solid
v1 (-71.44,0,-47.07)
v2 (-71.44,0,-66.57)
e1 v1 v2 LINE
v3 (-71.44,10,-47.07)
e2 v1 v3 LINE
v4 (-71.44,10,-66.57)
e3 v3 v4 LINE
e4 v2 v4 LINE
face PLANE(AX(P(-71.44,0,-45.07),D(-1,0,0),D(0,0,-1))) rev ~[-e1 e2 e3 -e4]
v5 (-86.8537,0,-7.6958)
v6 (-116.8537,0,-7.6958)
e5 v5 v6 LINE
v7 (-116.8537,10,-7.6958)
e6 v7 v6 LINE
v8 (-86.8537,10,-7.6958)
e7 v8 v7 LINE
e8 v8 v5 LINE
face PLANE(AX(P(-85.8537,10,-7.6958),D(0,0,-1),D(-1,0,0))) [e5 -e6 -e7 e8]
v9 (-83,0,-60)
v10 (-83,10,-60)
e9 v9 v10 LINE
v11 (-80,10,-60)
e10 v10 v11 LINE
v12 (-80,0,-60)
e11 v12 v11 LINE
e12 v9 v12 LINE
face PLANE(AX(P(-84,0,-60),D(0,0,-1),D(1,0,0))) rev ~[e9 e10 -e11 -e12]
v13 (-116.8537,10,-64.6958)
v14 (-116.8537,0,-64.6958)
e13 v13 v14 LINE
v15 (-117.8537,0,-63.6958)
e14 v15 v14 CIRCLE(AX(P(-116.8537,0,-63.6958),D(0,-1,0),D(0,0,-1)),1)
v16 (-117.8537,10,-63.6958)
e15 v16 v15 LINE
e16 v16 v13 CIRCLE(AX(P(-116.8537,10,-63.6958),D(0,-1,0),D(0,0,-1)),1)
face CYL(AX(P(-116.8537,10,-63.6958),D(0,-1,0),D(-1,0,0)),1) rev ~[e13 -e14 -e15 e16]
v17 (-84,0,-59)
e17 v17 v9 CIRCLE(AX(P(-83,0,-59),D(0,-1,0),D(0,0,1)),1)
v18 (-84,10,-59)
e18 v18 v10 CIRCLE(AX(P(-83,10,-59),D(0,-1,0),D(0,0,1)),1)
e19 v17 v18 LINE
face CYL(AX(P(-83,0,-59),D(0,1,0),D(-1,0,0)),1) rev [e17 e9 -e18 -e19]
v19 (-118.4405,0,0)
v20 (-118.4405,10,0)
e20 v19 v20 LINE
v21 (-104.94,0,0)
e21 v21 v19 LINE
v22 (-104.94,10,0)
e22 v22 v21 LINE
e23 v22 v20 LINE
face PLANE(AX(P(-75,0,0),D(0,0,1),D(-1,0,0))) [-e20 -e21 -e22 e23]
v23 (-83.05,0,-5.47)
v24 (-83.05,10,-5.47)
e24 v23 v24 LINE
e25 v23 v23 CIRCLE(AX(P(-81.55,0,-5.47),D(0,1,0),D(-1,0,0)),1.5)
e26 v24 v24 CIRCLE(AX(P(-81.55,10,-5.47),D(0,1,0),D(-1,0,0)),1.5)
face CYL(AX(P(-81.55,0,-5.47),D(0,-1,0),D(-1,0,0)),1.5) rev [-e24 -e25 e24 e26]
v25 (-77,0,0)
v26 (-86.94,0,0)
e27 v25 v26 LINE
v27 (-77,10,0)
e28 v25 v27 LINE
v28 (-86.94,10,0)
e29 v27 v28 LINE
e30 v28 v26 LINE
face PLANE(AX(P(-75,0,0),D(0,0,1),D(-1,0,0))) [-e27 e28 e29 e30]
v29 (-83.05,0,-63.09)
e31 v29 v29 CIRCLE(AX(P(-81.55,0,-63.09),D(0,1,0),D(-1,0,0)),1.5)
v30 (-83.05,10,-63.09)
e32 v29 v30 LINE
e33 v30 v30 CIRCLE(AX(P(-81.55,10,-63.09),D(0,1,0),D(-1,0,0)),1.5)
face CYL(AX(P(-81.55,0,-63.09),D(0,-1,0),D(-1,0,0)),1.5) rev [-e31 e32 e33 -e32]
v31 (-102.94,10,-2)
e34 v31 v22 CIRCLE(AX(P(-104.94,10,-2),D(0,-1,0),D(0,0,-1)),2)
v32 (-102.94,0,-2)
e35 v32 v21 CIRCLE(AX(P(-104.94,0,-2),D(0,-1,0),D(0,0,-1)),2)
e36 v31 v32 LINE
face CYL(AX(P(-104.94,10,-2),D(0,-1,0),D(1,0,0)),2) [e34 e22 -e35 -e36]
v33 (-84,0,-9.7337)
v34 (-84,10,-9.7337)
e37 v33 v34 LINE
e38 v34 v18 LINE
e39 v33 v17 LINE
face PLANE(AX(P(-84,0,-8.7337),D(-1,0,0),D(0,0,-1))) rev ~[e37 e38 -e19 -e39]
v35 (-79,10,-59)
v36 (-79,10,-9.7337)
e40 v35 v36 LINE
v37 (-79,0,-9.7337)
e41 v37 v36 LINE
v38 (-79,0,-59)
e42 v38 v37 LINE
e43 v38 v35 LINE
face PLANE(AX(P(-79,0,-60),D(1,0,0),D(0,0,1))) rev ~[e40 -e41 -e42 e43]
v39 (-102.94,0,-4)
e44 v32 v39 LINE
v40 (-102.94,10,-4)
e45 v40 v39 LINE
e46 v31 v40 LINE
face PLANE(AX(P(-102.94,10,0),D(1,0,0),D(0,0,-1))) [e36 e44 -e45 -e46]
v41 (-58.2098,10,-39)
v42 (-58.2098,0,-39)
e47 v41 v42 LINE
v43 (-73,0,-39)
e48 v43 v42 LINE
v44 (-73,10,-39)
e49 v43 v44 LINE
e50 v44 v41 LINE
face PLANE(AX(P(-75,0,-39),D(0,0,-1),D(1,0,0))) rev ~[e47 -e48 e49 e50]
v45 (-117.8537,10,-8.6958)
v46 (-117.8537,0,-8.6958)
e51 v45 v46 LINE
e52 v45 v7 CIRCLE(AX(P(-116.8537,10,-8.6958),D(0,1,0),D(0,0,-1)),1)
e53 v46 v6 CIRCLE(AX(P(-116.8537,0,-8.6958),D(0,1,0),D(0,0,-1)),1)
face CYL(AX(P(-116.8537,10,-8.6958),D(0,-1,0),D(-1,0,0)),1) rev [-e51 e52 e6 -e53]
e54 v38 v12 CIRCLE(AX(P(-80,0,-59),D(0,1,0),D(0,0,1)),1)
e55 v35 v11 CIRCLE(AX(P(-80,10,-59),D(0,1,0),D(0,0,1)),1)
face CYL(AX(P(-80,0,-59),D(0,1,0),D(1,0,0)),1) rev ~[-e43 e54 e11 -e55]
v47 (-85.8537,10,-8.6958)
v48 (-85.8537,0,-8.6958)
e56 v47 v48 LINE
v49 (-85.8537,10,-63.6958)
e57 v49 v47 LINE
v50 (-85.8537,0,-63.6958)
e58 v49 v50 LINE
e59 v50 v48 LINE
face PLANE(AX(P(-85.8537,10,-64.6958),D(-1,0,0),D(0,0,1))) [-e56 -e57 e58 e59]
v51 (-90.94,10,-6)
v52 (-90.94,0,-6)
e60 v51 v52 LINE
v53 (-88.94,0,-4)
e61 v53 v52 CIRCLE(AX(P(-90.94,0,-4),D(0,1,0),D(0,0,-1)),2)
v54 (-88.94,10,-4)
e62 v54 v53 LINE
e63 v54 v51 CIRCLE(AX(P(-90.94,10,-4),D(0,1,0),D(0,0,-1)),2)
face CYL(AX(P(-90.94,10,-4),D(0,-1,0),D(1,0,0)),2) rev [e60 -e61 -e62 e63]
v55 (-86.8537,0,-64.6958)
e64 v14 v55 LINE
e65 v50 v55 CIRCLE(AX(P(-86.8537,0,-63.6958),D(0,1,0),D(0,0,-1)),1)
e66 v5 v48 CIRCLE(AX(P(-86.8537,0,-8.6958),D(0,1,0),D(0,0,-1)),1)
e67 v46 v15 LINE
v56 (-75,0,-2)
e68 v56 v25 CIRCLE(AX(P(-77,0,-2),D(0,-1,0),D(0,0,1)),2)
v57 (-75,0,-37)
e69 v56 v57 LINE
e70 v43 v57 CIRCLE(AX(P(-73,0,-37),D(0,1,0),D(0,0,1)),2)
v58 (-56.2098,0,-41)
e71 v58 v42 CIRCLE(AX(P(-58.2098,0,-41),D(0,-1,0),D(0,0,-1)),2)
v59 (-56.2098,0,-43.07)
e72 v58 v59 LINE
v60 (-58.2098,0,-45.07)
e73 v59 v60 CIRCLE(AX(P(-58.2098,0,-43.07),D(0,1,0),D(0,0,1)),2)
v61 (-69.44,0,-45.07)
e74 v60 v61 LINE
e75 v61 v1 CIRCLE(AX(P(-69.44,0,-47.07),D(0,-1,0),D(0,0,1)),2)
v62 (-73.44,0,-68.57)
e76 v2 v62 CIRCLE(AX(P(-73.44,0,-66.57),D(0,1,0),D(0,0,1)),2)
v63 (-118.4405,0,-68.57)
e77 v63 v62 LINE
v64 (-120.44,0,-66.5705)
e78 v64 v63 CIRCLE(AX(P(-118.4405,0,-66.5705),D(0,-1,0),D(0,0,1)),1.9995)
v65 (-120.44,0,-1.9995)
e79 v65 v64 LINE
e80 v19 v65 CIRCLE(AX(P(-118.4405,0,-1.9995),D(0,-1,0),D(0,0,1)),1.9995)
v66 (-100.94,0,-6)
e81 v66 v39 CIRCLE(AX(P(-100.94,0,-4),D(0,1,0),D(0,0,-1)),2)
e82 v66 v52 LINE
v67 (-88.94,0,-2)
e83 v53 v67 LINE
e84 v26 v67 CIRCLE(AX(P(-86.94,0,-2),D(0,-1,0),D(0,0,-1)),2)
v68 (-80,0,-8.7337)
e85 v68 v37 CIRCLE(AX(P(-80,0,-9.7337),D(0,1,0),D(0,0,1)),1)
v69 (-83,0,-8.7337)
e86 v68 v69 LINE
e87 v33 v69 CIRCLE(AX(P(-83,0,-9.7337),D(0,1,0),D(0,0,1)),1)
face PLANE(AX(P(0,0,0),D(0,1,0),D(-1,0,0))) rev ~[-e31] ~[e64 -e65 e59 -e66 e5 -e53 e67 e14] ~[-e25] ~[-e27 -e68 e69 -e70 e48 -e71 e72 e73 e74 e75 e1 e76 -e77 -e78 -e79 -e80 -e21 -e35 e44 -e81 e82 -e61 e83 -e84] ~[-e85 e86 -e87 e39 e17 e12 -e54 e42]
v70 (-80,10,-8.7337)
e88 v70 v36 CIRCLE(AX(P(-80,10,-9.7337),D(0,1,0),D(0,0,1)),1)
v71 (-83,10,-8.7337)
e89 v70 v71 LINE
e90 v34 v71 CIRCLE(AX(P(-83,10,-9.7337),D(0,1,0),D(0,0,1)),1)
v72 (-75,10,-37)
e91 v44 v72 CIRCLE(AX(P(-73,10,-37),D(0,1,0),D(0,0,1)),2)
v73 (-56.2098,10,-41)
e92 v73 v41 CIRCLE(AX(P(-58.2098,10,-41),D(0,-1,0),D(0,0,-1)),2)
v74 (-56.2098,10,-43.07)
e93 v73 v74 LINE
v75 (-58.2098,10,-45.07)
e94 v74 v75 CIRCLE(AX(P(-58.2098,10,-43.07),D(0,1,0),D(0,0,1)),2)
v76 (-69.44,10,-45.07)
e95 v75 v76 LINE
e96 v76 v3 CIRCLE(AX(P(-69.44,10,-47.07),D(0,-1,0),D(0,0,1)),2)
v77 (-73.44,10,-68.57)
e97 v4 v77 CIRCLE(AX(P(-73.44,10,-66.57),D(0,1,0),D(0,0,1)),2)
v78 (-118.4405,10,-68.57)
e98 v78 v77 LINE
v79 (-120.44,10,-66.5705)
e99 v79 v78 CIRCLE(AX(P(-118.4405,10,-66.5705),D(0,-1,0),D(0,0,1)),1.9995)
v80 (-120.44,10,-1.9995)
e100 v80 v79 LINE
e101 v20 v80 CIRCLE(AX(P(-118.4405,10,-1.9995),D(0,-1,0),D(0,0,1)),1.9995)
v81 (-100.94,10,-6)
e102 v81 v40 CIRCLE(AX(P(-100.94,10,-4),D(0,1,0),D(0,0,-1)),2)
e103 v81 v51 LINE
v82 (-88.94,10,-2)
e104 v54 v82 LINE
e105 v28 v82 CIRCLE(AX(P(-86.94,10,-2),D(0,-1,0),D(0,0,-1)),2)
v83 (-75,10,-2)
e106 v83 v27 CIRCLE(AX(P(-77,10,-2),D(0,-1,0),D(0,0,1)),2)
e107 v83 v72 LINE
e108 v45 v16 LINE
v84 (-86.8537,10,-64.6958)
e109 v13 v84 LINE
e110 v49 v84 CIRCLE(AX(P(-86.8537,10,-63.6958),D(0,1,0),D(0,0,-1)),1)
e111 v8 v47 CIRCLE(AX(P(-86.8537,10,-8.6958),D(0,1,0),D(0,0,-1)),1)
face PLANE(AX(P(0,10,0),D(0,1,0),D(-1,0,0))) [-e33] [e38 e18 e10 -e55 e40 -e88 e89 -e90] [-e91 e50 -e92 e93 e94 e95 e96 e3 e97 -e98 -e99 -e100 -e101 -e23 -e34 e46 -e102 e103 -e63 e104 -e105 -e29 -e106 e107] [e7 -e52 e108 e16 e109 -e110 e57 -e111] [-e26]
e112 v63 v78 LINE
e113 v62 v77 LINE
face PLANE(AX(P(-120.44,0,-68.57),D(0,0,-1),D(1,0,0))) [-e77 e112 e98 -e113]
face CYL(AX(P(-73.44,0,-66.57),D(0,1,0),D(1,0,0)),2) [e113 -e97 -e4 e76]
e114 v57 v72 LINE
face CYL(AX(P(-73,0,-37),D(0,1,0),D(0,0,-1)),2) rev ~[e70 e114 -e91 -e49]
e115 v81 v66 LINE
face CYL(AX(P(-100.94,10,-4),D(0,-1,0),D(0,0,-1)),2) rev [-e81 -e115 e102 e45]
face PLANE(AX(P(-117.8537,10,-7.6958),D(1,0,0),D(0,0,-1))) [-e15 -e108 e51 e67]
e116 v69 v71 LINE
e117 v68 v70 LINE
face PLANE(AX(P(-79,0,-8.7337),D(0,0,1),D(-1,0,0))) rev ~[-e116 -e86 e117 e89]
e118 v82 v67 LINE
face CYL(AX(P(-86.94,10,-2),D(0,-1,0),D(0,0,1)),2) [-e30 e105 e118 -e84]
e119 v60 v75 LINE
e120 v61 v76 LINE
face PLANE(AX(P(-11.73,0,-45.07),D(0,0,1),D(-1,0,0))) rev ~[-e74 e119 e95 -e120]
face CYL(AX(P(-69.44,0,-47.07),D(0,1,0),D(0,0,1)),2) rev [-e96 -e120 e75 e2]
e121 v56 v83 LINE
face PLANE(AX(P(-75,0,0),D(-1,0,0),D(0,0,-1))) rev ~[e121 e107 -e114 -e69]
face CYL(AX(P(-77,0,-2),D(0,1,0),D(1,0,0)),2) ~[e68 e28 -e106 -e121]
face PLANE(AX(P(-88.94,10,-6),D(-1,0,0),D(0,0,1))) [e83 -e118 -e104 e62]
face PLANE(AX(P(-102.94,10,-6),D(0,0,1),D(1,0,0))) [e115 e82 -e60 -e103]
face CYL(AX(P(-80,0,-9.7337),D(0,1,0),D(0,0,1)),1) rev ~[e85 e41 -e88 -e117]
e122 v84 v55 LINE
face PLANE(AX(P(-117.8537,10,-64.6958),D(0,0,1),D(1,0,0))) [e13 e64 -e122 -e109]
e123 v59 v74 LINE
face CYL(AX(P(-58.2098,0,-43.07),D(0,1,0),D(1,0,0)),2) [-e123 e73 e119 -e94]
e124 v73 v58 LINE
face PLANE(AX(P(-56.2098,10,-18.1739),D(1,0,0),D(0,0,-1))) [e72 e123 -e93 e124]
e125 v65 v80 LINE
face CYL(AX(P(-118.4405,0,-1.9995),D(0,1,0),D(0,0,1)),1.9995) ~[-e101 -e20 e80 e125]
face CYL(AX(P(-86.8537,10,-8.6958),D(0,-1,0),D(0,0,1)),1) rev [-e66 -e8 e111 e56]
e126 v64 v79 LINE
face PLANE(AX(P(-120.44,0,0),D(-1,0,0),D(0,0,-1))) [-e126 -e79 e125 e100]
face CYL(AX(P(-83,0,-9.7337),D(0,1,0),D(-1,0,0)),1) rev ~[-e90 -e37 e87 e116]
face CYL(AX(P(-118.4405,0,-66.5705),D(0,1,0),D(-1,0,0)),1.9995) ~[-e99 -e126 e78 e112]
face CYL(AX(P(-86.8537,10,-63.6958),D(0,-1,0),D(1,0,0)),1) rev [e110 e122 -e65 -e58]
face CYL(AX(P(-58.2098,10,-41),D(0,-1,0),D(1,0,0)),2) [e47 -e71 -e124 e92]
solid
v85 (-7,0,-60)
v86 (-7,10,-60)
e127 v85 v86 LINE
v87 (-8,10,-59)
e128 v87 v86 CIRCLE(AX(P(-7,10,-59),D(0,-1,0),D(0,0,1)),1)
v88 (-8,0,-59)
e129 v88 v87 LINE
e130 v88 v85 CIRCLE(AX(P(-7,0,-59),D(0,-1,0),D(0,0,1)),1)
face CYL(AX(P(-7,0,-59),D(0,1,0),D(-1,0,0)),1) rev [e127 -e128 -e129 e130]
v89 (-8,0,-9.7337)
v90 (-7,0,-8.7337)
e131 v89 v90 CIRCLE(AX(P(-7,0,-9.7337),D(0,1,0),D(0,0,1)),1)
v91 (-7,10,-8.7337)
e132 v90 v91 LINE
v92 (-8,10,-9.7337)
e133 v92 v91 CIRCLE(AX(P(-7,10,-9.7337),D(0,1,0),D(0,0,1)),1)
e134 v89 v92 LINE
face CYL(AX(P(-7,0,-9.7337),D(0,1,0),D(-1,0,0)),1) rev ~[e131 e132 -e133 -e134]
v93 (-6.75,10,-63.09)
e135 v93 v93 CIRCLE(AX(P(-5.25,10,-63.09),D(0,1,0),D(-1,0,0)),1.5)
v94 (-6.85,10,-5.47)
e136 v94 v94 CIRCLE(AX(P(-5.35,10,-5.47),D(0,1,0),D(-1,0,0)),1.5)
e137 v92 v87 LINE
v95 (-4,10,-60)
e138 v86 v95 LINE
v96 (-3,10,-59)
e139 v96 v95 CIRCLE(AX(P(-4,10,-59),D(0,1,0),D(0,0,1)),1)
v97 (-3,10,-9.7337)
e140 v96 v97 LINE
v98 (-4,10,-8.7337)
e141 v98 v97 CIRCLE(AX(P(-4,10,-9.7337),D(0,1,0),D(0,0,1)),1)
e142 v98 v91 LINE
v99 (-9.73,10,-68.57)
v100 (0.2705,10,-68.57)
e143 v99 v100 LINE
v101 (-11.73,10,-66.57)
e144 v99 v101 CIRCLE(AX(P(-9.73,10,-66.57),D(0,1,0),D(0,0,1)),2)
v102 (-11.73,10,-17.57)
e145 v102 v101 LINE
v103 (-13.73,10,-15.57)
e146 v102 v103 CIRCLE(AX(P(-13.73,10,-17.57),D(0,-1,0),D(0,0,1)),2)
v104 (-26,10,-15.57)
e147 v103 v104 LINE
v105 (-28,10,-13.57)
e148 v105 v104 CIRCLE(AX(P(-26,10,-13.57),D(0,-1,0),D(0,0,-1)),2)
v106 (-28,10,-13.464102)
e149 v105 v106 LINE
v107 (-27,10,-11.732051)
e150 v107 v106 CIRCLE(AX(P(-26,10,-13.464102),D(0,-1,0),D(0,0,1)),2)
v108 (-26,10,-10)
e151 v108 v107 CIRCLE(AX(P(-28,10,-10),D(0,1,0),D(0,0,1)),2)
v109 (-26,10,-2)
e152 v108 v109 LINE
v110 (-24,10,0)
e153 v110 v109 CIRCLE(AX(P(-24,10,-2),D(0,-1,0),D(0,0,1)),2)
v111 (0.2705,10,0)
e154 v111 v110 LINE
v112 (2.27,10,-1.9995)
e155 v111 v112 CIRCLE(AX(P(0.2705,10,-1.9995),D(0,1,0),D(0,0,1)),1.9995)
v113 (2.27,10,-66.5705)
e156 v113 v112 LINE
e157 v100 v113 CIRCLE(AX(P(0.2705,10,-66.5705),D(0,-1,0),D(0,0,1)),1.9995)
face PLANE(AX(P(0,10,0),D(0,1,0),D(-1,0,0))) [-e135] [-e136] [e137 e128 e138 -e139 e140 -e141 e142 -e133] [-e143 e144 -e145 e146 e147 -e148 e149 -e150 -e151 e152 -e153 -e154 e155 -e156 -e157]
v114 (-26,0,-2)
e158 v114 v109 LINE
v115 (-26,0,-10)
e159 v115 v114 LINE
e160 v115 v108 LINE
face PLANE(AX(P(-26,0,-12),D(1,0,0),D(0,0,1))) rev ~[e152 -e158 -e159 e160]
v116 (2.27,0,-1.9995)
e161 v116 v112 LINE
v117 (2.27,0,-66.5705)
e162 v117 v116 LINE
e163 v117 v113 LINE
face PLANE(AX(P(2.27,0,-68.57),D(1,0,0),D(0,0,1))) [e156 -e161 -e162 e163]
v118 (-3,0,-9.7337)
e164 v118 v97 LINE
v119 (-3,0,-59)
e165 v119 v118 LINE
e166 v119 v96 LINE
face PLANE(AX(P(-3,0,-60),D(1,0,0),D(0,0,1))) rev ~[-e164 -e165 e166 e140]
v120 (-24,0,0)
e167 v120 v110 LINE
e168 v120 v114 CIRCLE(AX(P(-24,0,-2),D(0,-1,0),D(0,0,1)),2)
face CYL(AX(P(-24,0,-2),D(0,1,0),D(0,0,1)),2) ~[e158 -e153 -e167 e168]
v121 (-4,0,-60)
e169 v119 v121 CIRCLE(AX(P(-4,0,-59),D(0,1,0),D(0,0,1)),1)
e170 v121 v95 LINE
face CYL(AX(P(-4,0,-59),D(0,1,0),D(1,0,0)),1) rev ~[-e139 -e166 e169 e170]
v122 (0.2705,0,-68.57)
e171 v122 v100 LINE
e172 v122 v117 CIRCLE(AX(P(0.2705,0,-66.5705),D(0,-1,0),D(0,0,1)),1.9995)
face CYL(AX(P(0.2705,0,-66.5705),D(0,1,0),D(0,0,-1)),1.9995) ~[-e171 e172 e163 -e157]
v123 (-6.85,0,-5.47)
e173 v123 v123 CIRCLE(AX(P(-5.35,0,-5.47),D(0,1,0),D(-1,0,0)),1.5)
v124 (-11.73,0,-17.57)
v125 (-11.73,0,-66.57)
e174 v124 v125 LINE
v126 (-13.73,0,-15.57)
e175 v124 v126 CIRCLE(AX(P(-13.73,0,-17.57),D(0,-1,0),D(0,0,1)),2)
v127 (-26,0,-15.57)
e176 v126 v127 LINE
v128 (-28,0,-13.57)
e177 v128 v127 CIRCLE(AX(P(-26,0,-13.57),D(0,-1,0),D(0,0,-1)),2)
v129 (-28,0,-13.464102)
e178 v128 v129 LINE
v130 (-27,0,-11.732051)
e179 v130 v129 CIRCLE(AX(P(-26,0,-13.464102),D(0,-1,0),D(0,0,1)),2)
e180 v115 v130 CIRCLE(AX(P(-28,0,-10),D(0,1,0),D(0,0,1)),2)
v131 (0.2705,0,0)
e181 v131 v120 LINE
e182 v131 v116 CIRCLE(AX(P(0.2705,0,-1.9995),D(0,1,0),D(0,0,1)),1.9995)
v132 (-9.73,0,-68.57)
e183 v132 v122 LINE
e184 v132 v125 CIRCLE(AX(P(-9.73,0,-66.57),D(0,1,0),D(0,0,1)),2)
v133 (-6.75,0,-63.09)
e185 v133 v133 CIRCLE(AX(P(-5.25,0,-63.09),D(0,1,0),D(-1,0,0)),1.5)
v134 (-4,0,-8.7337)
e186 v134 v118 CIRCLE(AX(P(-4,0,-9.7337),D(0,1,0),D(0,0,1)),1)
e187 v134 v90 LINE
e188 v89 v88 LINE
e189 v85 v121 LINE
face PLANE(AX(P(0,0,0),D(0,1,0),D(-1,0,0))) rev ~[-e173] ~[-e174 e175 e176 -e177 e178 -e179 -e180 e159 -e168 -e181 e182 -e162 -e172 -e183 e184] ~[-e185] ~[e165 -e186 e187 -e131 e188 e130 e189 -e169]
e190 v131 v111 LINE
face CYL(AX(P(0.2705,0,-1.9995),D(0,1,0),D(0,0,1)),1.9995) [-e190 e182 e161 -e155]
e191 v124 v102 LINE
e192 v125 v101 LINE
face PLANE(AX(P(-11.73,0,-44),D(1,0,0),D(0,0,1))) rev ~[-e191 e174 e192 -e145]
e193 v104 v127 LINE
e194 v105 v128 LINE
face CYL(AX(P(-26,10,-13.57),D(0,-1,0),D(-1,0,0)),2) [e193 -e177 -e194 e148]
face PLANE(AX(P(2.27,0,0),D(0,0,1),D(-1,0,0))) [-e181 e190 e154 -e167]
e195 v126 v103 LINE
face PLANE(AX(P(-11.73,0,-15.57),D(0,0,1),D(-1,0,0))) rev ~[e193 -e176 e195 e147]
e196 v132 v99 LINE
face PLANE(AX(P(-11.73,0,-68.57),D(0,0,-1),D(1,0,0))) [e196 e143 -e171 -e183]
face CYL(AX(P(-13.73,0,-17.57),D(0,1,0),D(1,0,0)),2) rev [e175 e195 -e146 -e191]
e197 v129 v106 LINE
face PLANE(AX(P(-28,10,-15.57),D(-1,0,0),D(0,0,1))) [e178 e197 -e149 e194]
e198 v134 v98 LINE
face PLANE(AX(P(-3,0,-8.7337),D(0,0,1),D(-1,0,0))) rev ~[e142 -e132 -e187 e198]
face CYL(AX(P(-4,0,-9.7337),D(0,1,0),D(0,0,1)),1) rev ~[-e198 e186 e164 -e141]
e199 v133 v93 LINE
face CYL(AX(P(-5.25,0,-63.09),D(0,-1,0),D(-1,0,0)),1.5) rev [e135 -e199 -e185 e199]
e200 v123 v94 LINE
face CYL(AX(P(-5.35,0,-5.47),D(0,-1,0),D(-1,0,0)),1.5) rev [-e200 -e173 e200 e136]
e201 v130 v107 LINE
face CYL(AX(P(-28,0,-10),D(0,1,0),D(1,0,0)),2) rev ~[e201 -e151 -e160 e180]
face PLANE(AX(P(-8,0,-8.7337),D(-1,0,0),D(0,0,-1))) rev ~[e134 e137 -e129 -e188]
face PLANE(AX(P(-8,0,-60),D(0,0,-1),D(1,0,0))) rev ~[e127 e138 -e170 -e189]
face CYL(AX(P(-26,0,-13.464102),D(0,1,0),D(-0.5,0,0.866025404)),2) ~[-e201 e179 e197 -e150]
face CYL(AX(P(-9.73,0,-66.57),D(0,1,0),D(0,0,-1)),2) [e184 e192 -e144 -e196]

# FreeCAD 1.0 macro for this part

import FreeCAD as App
import Part
import Sketcher
Q = App.Units.Quantity


def edges_at(feature, points):
    """Names of the edges that pass closest to the given points."""
    edges = feature.Shape.Edges
    near = lambda p: min(range(len(edges)), key=lambda i: edges[i].distToShape(Part.Vertex(*p))[0])
    return sorted({f"Edge{near(p) + 1}" for p in points})

doc = App.newDocument("Part")
params = doc.addObject("Spreadsheet::Sheet", "Params")
for row, (alias, value) in enumerate([
    ("sketch1_diameter", "3 mm"),
    ("sketch1_width", "14 mm"),
    ("sketch1_width2", "49 mm"),
    ("sketch1_width3", "24 mm"),
    ("sketch1_height", "39 mm"),
    ("pad1_length", "10 mm"),
    ("fillet_radius", "2 mm"),
    ("fillet2_radius", "2 mm"),
    ("fillet3_radius", "1 mm"),
    ("sketch2_width", "14 mm"),
    ("sketch2_height", "6 mm"),
    ("pocket1_length", "10 mm"),
    ("fillet4_radius", "2 mm"),
    ("sketch3_diameter", "2.5 mm"),
    ("pocket2_length", "10 mm"),
    ("sketch4_diameter", "2.5 mm"),
    ("pocket3_length", "10 mm"),
    ("sketch5_width", "32 mm"),
    ("sketch5_height", "57 mm"),
    ("pocket4_length", "10 mm"),
    ("fillet5_radius", "1 mm"),
    ("sketch6_width", "12 mm"),
    ("sketch6_height", "3.57 mm"),
    ("pocket5_length", "10 mm"),
    ("fillet6_radius", "2 mm"),
    ("pocket6_length", "10 mm"),
    ("fillet7_radius", "2 mm"),
    ("sketch8_width", "33 mm"),
    ("sketch8_height", "18 mm"),
    ("pocket7_length", "10 mm"),
    ("fillet8_radius", "2 mm"),
], start=1):
    params.set(f"A{row}", alias)
    params.set(f"B{row}", "=" + value)
    params.setAlias(f"B{row}", alias)

body = doc.addObject("PartDesign::Body", "Body")
body.AllowCompound = True

sketch1 = doc.addObject("Sketcher::SketchObject", "Sketch")
body.addObject(sketch1)
sketch1.AttachmentSupport = (doc.XZ_Plane, [""])
sketch1.MapMode = "FlatFace"
sketch1.addGeometry([
    Part.LineSegment(App.Vector(-26, 0, 0), App.Vector(2.27, 0, 0)),
    Part.LineSegment(App.Vector(2.27, 0, 0), App.Vector(2.27, -68.57, 0)),
    Part.LineSegment(App.Vector(2.27, -68.57, 0), App.Vector(-11.73, -68.57, 0)),
    Part.LineSegment(App.Vector(-11.73, -68.57, 0), App.Vector(-11.73, -45.07, 0)),
    Part.LineSegment(App.Vector(-11.73, -45.07, 0), App.Vector(-71.44, -45.07, 0)),
    Part.LineSegment(App.Vector(-71.44, -45.07, 0), App.Vector(-71.44, -68.57, 0)),
    Part.LineSegment(App.Vector(-71.44, -68.57, 0), App.Vector(-120.44, -68.57, 0)),
    Part.LineSegment(App.Vector(-120.44, -68.57, 0), App.Vector(-120.44, 0, 0)),
    Part.LineSegment(App.Vector(-120.44, 0, 0), App.Vector(-75, 0, 0)),
    Part.LineSegment(App.Vector(-75, 0, 0), App.Vector(-75, -39, 0)),
    Part.LineSegment(App.Vector(-75, -39, 0), App.Vector(-51, -39, 0)),
    Part.LineSegment(App.Vector(-51, -39, 0), App.Vector(-51, -12, 0)),
    Part.LineSegment(App.Vector(-51, -12, 0), App.Vector(-26, -12, 0)),
    Part.LineSegment(App.Vector(-26, -12, 0), App.Vector(-26, 0, 0)),
    Part.Circle(App.Vector(-5.25, -63.09, 0), App.Vector(0, 0, 1), 1.5),
    Part.LineSegment(App.Vector(-8, -8.7337, 0), App.Vector(-8, -60, 0)),
    Part.LineSegment(App.Vector(-8, -60, 0), App.Vector(-3, -60, 0)),
    Part.LineSegment(App.Vector(-3, -60, 0), App.Vector(-3, -8.7337, 0)),
    Part.LineSegment(App.Vector(-3, -8.7337, 0), App.Vector(-8, -8.7337, 0)),
    Part.Circle(App.Vector(-81.55, -63.09, 0), App.Vector(0, 0, 1), 1.5),
    Part.LineSegment(App.Vector(-84, -8.7337, 0), App.Vector(-84, -60, 0)),
    Part.LineSegment(App.Vector(-84, -60, 0), App.Vector(-79, -60, 0)),
    Part.LineSegment(App.Vector(-79, -60, 0), App.Vector(-79, -8.7337, 0)),
    Part.LineSegment(App.Vector(-79, -8.7337, 0), App.Vector(-84, -8.7337, 0)),
    Part.LineSegment(App.Vector(-11.73, -44, 0), App.Vector(-11.73, -15.57, 0)),
    Part.LineSegment(App.Vector(-11.73, -15.57, 0), App.Vector(-42, -15.57, 0)),
    Part.LineSegment(App.Vector(-42, -15.57, 0), App.Vector(-42, -44, 0)),
    Part.LineSegment(App.Vector(-42, -44, 0), App.Vector(-11.73, -44, 0)),
    Part.Circle(App.Vector(-5.35, -5.47, 0), App.Vector(0, 0, 1), 1.5),
    Part.Circle(App.Vector(-81.55, -5.47, 0), App.Vector(0, 0, 1), 1.5),
], False)
sketch1.addConstraint([
    Sketcher.Constraint("Coincident", 0, 2, 1, 1),
    Sketcher.Constraint("Coincident", 1, 2, 2, 1),
    Sketcher.Constraint("Coincident", 2, 2, 3, 1),
    Sketcher.Constraint("Coincident", 3, 2, 4, 1),
    Sketcher.Constraint("Coincident", 4, 2, 5, 1),
    Sketcher.Constraint("Coincident", 5, 2, 6, 1),
    Sketcher.Constraint("Coincident", 6, 2, 7, 1),
    Sketcher.Constraint("Coincident", 7, 2, 8, 1),
    Sketcher.Constraint("Coincident", 8, 2, 9, 1),
    Sketcher.Constraint("Coincident", 9, 2, 10, 1),
    Sketcher.Constraint("Coincident", 10, 2, 11, 1),
    Sketcher.Constraint("Coincident", 11, 2, 12, 1),
    Sketcher.Constraint("Coincident", 12, 2, 13, 1),
    Sketcher.Constraint("Coincident", 13, 2, 0, 1),
    Sketcher.Constraint("Coincident", 15, 2, 16, 1),
    Sketcher.Constraint("Coincident", 16, 2, 17, 1),
    Sketcher.Constraint("Coincident", 17, 2, 18, 1),
    Sketcher.Constraint("Coincident", 18, 2, 15, 1),
    Sketcher.Constraint("Coincident", 20, 2, 21, 1),
    Sketcher.Constraint("Coincident", 21, 2, 22, 1),
    Sketcher.Constraint("Coincident", 22, 2, 23, 1),
    Sketcher.Constraint("Coincident", 23, 2, 20, 1),
    Sketcher.Constraint("Coincident", 24, 2, 25, 1),
    Sketcher.Constraint("Coincident", 25, 2, 26, 1),
    Sketcher.Constraint("Coincident", 26, 2, 27, 1),
    Sketcher.Constraint("Coincident", 27, 2, 24, 1),
    Sketcher.Constraint("Horizontal", 0),
    Sketcher.Constraint("Vertical", 1),
    Sketcher.Constraint("Horizontal", 2),
    Sketcher.Constraint("Vertical", 3),
    Sketcher.Constraint("Horizontal", 4),
    Sketcher.Constraint("Vertical", 5),
    Sketcher.Constraint("Horizontal", 6),
    Sketcher.Constraint("Vertical", 7),
    Sketcher.Constraint("Horizontal", 8),
    Sketcher.Constraint("Vertical", 9),
    Sketcher.Constraint("Horizontal", 10),
    Sketcher.Constraint("Vertical", 11),
    Sketcher.Constraint("Horizontal", 12),
    Sketcher.Constraint("Vertical", 13),
    Sketcher.Constraint("Vertical", 15),
    Sketcher.Constraint("Horizontal", 16),
    Sketcher.Constraint("Vertical", 17),
    Sketcher.Constraint("Horizontal", 18),
    Sketcher.Constraint("Vertical", 20),
    Sketcher.Constraint("Horizontal", 21),
    Sketcher.Constraint("Vertical", 22),
    Sketcher.Constraint("Horizontal", 23),
    Sketcher.Constraint("Vertical", 24),
    Sketcher.Constraint("Horizontal", 25),
    Sketcher.Constraint("Vertical", 26),
    Sketcher.Constraint("Horizontal", 27),
    Sketcher.Constraint("Equal", 14, 19),
    Sketcher.Constraint("Equal", 19, 28),
    Sketcher.Constraint("Equal", 28, 29),
    Sketcher.Constraint("PointOnObject", 0, 2, -1),
    Sketcher.Constraint("PointOnObject", 7, 2, -1),
    Sketcher.Constraint("Horizontal", 14, 3, 19, 3),
    Sketcher.Constraint("Horizontal", 28, 3, 29, 3),
    Sketcher.Constraint("Horizontal", 2, 2, 5, 2),
    Sketcher.Constraint("Horizontal", 16, 2, 20, 2),
    Sketcher.Constraint("Horizontal", 18, 2, 22, 2),
    Sketcher.Constraint("Vertical", 19, 3, 29, 3),
    Sketcher.Constraint("Vertical", 3, 2, 24, 2),
    Sketcher.Constraint("Equal", 18, 21),
    Sketcher.Constraint("Diameter", 14, 3.0),
    Sketcher.Constraint("DistanceX", 2, 2, 2, 1, 14.0),
    Sketcher.Constraint("DistanceX", 6, 2, 6, 1, 49.0),
    Sketcher.Constraint("DistanceX", 10, 1, 10, 2, 24.0),
    Sketcher.Constraint("DistanceY", 9, 2, 9, 1, 39.0),
    Sketcher.Constraint("DistanceY", 13, 1, 13, 2, 12.0),
    Sketcher.Constraint("DistanceY", 3, 1, 3, 2, 23.5),
    Sketcher.Constraint("DistanceX", 16, 2, -1, 1, 3.0),
    Sketcher.Constraint("DistanceX", 25, 2, 25, 1, 30.27),
    Sketcher.Constraint("DistanceY", 1, 2, 1, 1, 68.57),
    Sketcher.Constraint("DistanceY", 24, 1, 24, 2, 28.43),
    Sketcher.Constraint("DistanceX", 12, 1, 12, 2, 25.0),
    Sketcher.Constraint("DistanceX", 16, 1, 16, 2, 5.0),
    Sketcher.Constraint("DistanceX", 8, 2, -1, 1, 75.0),
    Sketcher.Constraint("DistanceY", 15, 2, -1, 1, 60.0),
    Sketcher.Constraint("DistanceX", 20, 2, -1, 1, 84.0),
    Sketcher.Constraint("DistanceX", 25, 2, -1, 1, 42.0),
    Sketcher.Constraint("DistanceY", 26, 2, -1, 1, 44.0),
    Sketcher.Constraint("DistanceX", 4, 2, 4, 1, 59.71),
    Sketcher.Constraint("DistanceX", 19, 3, 14, 3, 76.3),
    Sketcher.Constraint("DistanceX", 28, 3, 14, 3, 0.1),
    Sketcher.Constraint("DistanceY", 1, 2, 28, 3, 63.1),
    Sketcher.Constraint("DistanceX", 14, 3, -1, 1, 5.25),
    Sketcher.Constraint("DistanceY", 14, 3, -1, 1, 63.09),
    Sketcher.Constraint("DistanceY", 15, 2, 15, 1, 51.2663),
])
sketch1.setExpression("Constraints[65]", "Params.sketch1_diameter")
sketch1.setExpression("Constraints[66]", "Params.sketch1_width")
sketch1.setExpression("Constraints[67]", "Params.sketch1_width2")
sketch1.setExpression("Constraints[68]", "Params.sketch1_width3")
sketch1.setExpression("Constraints[69]", "Params.sketch1_height")
pad1 = doc.addObject("PartDesign::Pad", "Pad")
body.addObject(pad1)
pad1.Profile = sketch1
pad1.setExpression("Length", "Params.pad1_length")
pad1.Reversed = True
doc.recompute()

fillet = doc.addObject("PartDesign::Fillet", "Fillet")
body.addObject(fillet)
fillet.Base = (pad1, edges_at(pad1, [
    (-120.44, 5, -68.57),
    (-120.44, 5, 0),
    (2.27, 5, -68.57),
    (2.27, 5, 0),
]))
fillet.setExpression("Radius", "Params.fillet_radius")
doc.recompute()

fillet2 = doc.addObject("PartDesign::Fillet", "Fillet001")
body.addObject(fillet2)
fillet2.Base = (fillet, edges_at(fillet, [
    (-71.44, 5, -68.57),
    (-71.44, 5, -45.07),
    (-11.73, 5, -68.57),
    (-11.73, 5, -45.07),
    (-11.73, 5, -44),
    (-11.73, 5, -15.57),
    (-42, 5, -15.57),
    (-42, 5, -44),
    (-26, 5, -12),
    (-51, 5, -12),
    (-26, 5, 0),
    (-51, 5, -39),
    (-75, 5, -39),
    (-75, 5, 0),
]))
fillet2.setExpression("Radius", "Params.fillet2_radius")
doc.recompute()

fillet3 = doc.addObject("PartDesign::Fillet", "Fillet002")
body.addObject(fillet3)
fillet3.Base = (fillet2, edges_at(fillet2, [
    (-8, 5, -8.734),
    (-3, 5, -8.734),
    (-3, 5, -60),
    (-8, 5, -60),
    (-79, 5, -8.734),
    (-84, 5, -8.734),
    (-84, 5, -60),
    (-79, 5, -60),
]))
fillet3.setExpression("Radius", "Params.fillet3_radius")

sketch2 = doc.addObject("Sketcher::SketchObject", "Sketch001")
body.addObject(sketch2)
sketch2.AttachmentSupport = (doc.XZ_Plane, [""])
sketch2.MapMode = "FlatFace"
sketch2.AttachmentOffset = App.Placement(App.Vector(0, 0, -10), App.Rotation())
sketch2.addGeometry([
    Part.LineSegment(App.Vector(-102.94, -6, 0), App.Vector(-102.94, 0, 0)),
    Part.LineSegment(App.Vector(-102.94, 0, 0), App.Vector(-88.94, 0, 0)),
    Part.LineSegment(App.Vector(-88.94, 0, 0), App.Vector(-88.94, -6, 0)),
    Part.LineSegment(App.Vector(-88.94, -6, 0), App.Vector(-102.94, -6, 0)),
], False)
sketch2.addConstraint([
    Sketcher.Constraint("Coincident", 0, 2, 1, 1),
    Sketcher.Constraint("Coincident", 1, 2, 2, 1),
    Sketcher.Constraint("Coincident", 2, 2, 3, 1),
    Sketcher.Constraint("Coincident", 3, 2, 0, 1),
    Sketcher.Constraint("Vertical", 0),
    Sketcher.Constraint("Horizontal", 1),
    Sketcher.Constraint("Vertical", 2),
    Sketcher.Constraint("Horizontal", 3),
    Sketcher.Constraint("PointOnObject", 0, 2, -1),
    Sketcher.Constraint("DistanceX", 1, 1, 1, 2, 14.0),
    Sketcher.Constraint("DistanceY", 0, 1, 0, 2, 6.0),
    Sketcher.Constraint("DistanceX", 0, 2, -1, 1, 102.94),
])
sketch2.setExpression("Constraints[9]", "Params.sketch2_width")
sketch2.setExpression("Constraints[10]", "Params.sketch2_height")
pocket1 = doc.addObject("PartDesign::Pocket", "Pocket")
body.addObject(pocket1)
pocket1.Profile = sketch2
pocket1.setExpression("Length", "Params.pocket1_length")
pocket1.Reversed = True
doc.recompute()

fillet4 = doc.addObject("PartDesign::Fillet", "Fillet003")
body.addObject(fillet4)
fillet4.Base = (pocket1, edges_at(pocket1, [
    (-88.94, 5, 0),
    (-88.94, 5, -6),
    (-102.94, 5, -6),
    (-102.94, 5, 0),
]))
fillet4.setExpression("Radius", "Params.fillet4_radius")

sketch3 = doc.addObject("Sketcher::SketchObject", "Sketch002")
body.addObject(sketch3)
sketch3.AttachmentSupport = (doc.XZ_Plane, [""])
sketch3.MapMode = "FlatFace"
sketch3.AttachmentOffset = App.Placement(App.Vector(0, 0, -10), App.Rotation())
sketch3.addGeometry([
    Part.Circle(App.Vector(-91.14, -23.07, 0), App.Vector(0, 0, 1), 1.25),
    Part.Circle(App.Vector(-91.14, -50.07, 0), App.Vector(0, 0, 1), 1.25),
    Part.Circle(App.Vector(-113.14, -36.57, 0), App.Vector(0, 0, 1), 1.25),
], False)
sketch3.addConstraint([
    Sketcher.Constraint("Equal", 0, 1),
    Sketcher.Constraint("Equal", 1, 2),
    Sketcher.Constraint("Vertical", 0, 3, 1, 3),
    Sketcher.Constraint("Diameter", 0, 2.5),
    Sketcher.Constraint("DistanceY", 1, 3, 0, 3, 27.0),
    Sketcher.Constraint("DistanceX", 2, 3, 0, 3, 22.0),
    Sketcher.Constraint("DistanceY", 2, 3, 0, 3, 13.5),
    Sketcher.Constraint("DistanceX", 0, 3, -1, 1, 91.14),
    Sketcher.Constraint("DistanceY", 0, 3, -1, 1, 23.07),
])
sketch3.setExpression("Constraints[3]", "Params.sketch3_diameter")
pocket2 = doc.addObject("PartDesign::Pocket", "Pocket001")
body.addObject(pocket2)
pocket2.Profile = sketch3
pocket2.setExpression("Length", "Params.pocket2_length")
pocket2.Reversed = True

sketch4 = doc.addObject("Sketcher::SketchObject", "Sketch003")
body.addObject(sketch4)
sketch4.AttachmentSupport = (doc.XZ_Plane, [""])
sketch4.MapMode = "FlatFace"
sketch4.AttachmentOffset = App.Placement(App.Vector(0, 0, -10), App.Rotation())
sketch4.addGeometry([
    Part.LineSegment(App.Vector(-114.2947, -38.57, 0), App.Vector(-115.4494, -36.57, 0)),
    Part.LineSegment(App.Vector(-115.4494, -36.57, 0), App.Vector(-114.2947, -34.57, 0)),
    Part.LineSegment(App.Vector(-114.2947, -34.57, 0), App.Vector(-111.9853, -34.57, 0)),
    Part.LineSegment(App.Vector(-111.9853, -34.57, 0), App.Vector(-110.8306, -36.57, 0)),
    Part.LineSegment(App.Vector(-110.8306, -36.57, 0), App.Vector(-111.9853, -38.57, 0)),
    Part.LineSegment(App.Vector(-111.9853, -38.57, 0), App.Vector(-114.2947, -38.57, 0)),
    Part.Circle(App.Vector(-113.14, -36.57, 0), App.Vector(0, 0, 1), 1.25),
    Part.LineSegment(App.Vector(-92.2947, -25.07, 0), App.Vector(-93.4494, -23.07, 0)),
    Part.LineSegment(App.Vector(-93.4494, -23.07, 0), App.Vector(-92.2947, -21.07, 0)),
    Part.LineSegment(App.Vector(-92.2947, -21.07, 0), App.Vector(-89.9853, -21.07, 0)),
    Part.LineSegment(App.Vector(-89.9853, -21.07, 0), App.Vector(-88.8306, -23.07, 0)),
    Part.LineSegment(App.Vector(-88.8306, -23.07, 0), App.Vector(-89.9853, -25.07, 0)),
    Part.LineSegment(App.Vector(-89.9853, -25.07, 0), App.Vector(-92.2947, -25.07, 0)),
    Part.Circle(App.Vector(-91.14, -23.07, 0), App.Vector(0, 0, 1), 1.25),
    Part.LineSegment(App.Vector(-92.2947, -52.07, 0), App.Vector(-93.4494, -50.07, 0)),
    Part.LineSegment(App.Vector(-93.4494, -50.07, 0), App.Vector(-92.2947, -48.07, 0)),
    Part.LineSegment(App.Vector(-92.2947, -48.07, 0), App.Vector(-89.9853, -48.07, 0)),
    Part.LineSegment(App.Vector(-89.9853, -48.07, 0), App.Vector(-88.8306, -50.07, 0)),
    Part.LineSegment(App.Vector(-88.8306, -50.07, 0), App.Vector(-89.9853, -52.07, 0)),
    Part.LineSegment(App.Vector(-89.9853, -52.07, 0), App.Vector(-92.2947, -52.07, 0)),
    Part.Circle(App.Vector(-91.14, -50.07, 0), App.Vector(0, 0, 1), 1.25),
], False)
sketch4.addConstraint([
    Sketcher.Constraint("Coincident", 0, 2, 1, 1),
    Sketcher.Constraint("Coincident", 1, 2, 2, 1),
    Sketcher.Constraint("Coincident", 2, 2, 3, 1),
    Sketcher.Constraint("Coincident", 3, 2, 4, 1),
    Sketcher.Constraint("Coincident", 4, 2, 5, 1),
    Sketcher.Constraint("Coincident", 5, 2, 0, 1),
    Sketcher.Constraint("Coincident", 7, 2, 8, 1),
    Sketcher.Constraint("Coincident", 8, 2, 9, 1),
    Sketcher.Constraint("Coincident", 9, 2, 10, 1),
    Sketcher.Constraint("Coincident", 10, 2, 11, 1),
    Sketcher.Constraint("Coincident", 11, 2, 12, 1),
    Sketcher.Constraint("Coincident", 12, 2, 7, 1),
    Sketcher.Constraint("Coincident", 14, 2, 15, 1),
    Sketcher.Constraint("Coincident", 15, 2, 16, 1),
    Sketcher.Constraint("Coincident", 16, 2, 17, 1),
    Sketcher.Constraint("Coincident", 17, 2, 18, 1),
    Sketcher.Constraint("Coincident", 18, 2, 19, 1),
    Sketcher.Constraint("Coincident", 19, 2, 14, 1),
    Sketcher.Constraint("Horizontal", 2),
    Sketcher.Constraint("Horizontal", 5),
    Sketcher.Constraint("Horizontal", 9),
    Sketcher.Constraint("Horizontal", 12),
    Sketcher.Constraint("Horizontal", 16),
    Sketcher.Constraint("Horizontal", 19),
    Sketcher.Constraint("Equal", 6, 13),
    Sketcher.Constraint("Equal", 13, 20),
    Sketcher.Constraint("Parallel", 0, 3),
    Sketcher.Constraint("Parallel", 1, 4),
    Sketcher.Constraint("Parallel", 3, 7),
    Sketcher.Constraint("Parallel", 4, 8),
    Sketcher.Constraint("Parallel", 7, 10),
    Sketcher.Constraint("Parallel", 8, 11),
    Sketcher.Constraint("Parallel", 10, 14),
    Sketcher.Constraint("Parallel", 11, 15),
    Sketcher.Constraint("Parallel", 14, 17),
    Sketcher.Constraint("Parallel", 15, 18),
    Sketcher.Constraint("Horizontal", 6, 3, 0, 2),
    Sketcher.Constraint("Horizontal", 0, 2, 3, 2),
    Sketcher.Constraint("Horizontal", 13, 3, 7, 2),
    Sketcher.Constraint("Horizontal", 7, 2, 10, 2),
    Sketcher.Constraint("Horizontal", 20, 3, 14, 2),
    Sketcher.Constraint("Horizontal", 14, 2, 17, 2),
    Sketcher.Constraint("Vertical", 13, 3, 20, 3),
    Sketcher.Constraint("Vertical", 2, 2, 4, 2),
    Sketcher.Constraint("Vertical", 1, 2, 5, 2),
    Sketcher.Constraint("Vertical", 9, 2, 11, 2),
    Sketcher.Constraint("Vertical", 7, 2, 14, 2),
    Sketcher.Constraint("Vertical", 12, 2, 15, 2),
    Sketcher.Constraint("Vertical", 11, 2, 16, 2),
    Sketcher.Constraint("Vertical", 16, 2, 18, 2),
    Sketcher.Constraint("Equal", 5, 9),
    Sketcher.Constraint("Equal", 4, 7),
    Sketcher.Constraint("DistanceY", 4, 2, 2, 2, 4.0),
    Sketcher.Constraint("Diameter", 6, 2.5),
    Sketcher.Constraint("Angle", 0, Q("120 deg")),
    Sketcher.Constraint("DistanceX", 6, 3, 13, 3, 22.0),
    Sketcher.Constraint("DistanceY", 20, 3, 13, 3, 27.0),
    Sketcher.Constraint("DistanceX", 1, 2, 8, 2, 22.0),
    Sketcher.Constraint("DistanceY", 6, 3, 13, 3, 13.5),
    Sketcher.Constraint("DistanceX", 6, 3, -1, 1, 113.14),
    Sketcher.Constraint("DistanceY", 6, 3, -1, 1, 36.57),
    Sketcher.Constraint("DistanceX", 2, 1, 2, 2, 2.3094),
    Sketcher.Constraint("DistanceX", 0, 2, -1, 1, 115.4494),
])
sketch4.setExpression("Constraints[53]", "Params.sketch4_diameter")
pocket3 = doc.addObject("PartDesign::Pocket", "Pocket002")
body.addObject(pocket3)
pocket3.Profile = sketch4
pocket3.setExpression("Length", "Params.pocket3_length")
pocket3.Reversed = True

sketch5 = doc.addObject("Sketcher::SketchObject", "Sketch004")
body.addObject(sketch5)
sketch5.AttachmentSupport = (doc.XZ_Plane, [""])
sketch5.MapMode = "FlatFace"
sketch5.AttachmentOffset = App.Placement(App.Vector(0, 0, -10), App.Rotation())
sketch5.addGeometry([
    Part.LineSegment(App.Vector(-85.8537, -64.6958, 0), App.Vector(-117.8537, -64.6958, 0)),
    Part.LineSegment(App.Vector(-117.8537, -64.6958, 0), App.Vector(-117.8537, -7.6958, 0)),
    Part.LineSegment(App.Vector(-117.8537, -7.6958, 0), App.Vector(-85.8537, -7.6958, 0)),
    Part.LineSegment(App.Vector(-85.8537, -7.6958, 0), App.Vector(-85.8537, -64.6958, 0)),
], False)
sketch5.addConstraint([
    Sketcher.Constraint("Coincident", 0, 2, 1, 1),
    Sketcher.Constraint("Coincident", 1, 2, 2, 1),
    Sketcher.Constraint("Coincident", 2, 2, 3, 1),
    Sketcher.Constraint("Coincident", 3, 2, 0, 1),
    Sketcher.Constraint("Horizontal", 0),
    Sketcher.Constraint("Vertical", 1),
    Sketcher.Constraint("Horizontal", 2),
    Sketcher.Constraint("Vertical", 3),
    Sketcher.Constraint("DistanceX", 0, 2, 0, 1, 32.0),
    Sketcher.Constraint("DistanceY", 1, 1, 1, 2, 57.0),
    Sketcher.Constraint("DistanceX", 0, 2, -1, 1, 117.8537),
    Sketcher.Constraint("DistanceY", 0, 2, -1, 1, 64.6958),
])
sketch5.setExpression("Constraints[8]", "Params.sketch5_width")
sketch5.setExpression("Constraints[9]", "Params.sketch5_height")
pocket4 = doc.addObject("PartDesign::Pocket", "Pocket003")
body.addObject(pocket4)
pocket4.Profile = sketch5
pocket4.setExpression("Length", "Params.pocket4_length")
pocket4.Reversed = True
doc.recompute()

fillet5 = doc.addObject("PartDesign::Fillet", "Fillet004")
body.addObject(fillet5)
fillet5.Base = (pocket4, edges_at(pocket4, [
    (-117.854, 5, -64.696),
    (-85.854, 5, -64.696),
    (-85.854, 5, -7.696),
    (-117.854, 5, -7.696),
]))
fillet5.setExpression("Radius", "Params.fillet5_radius")

sketch6 = doc.addObject("Sketcher::SketchObject", "Sketch005")
body.addObject(sketch6)
sketch6.AttachmentSupport = (doc.XZ_Plane, [""])
sketch6.MapMode = "FlatFace"
sketch6.AttachmentOffset = App.Placement(App.Vector(0, 0, -10), App.Rotation())
sketch6.addGeometry([
    Part.LineSegment(App.Vector(-40, -12, 0), App.Vector(-28, -12, 0)),
    Part.LineSegment(App.Vector(-28, -12, 0), App.Vector(-28, -15.57, 0)),
    Part.LineSegment(App.Vector(-28, -15.57, 0), App.Vector(-40, -15.57, 0)),
    Part.LineSegment(App.Vector(-40, -15.57, 0), App.Vector(-40, -12, 0)),
], False)
sketch6.addConstraint([
    Sketcher.Constraint("Coincident", 0, 2, 1, 1),
    Sketcher.Constraint("Coincident", 1, 2, 2, 1),
    Sketcher.Constraint("Coincident", 2, 2, 3, 1),
    Sketcher.Constraint("Coincident", 3, 2, 0, 1),
    Sketcher.Constraint("Horizontal", 0),
    Sketcher.Constraint("Vertical", 1),
    Sketcher.Constraint("Horizontal", 2),
    Sketcher.Constraint("Vertical", 3),
    Sketcher.Constraint("DistanceX", 0, 1, 0, 2, 12.0),
    Sketcher.Constraint("DistanceX", 0, 2, -1, 1, 28.0),
    Sketcher.Constraint("DistanceY", 0, 2, -1, 1, 12.0),
    Sketcher.Constraint("DistanceY", 1, 2, 1, 1, 3.57),
])
sketch6.setExpression("Constraints[8]", "Params.sketch6_width")
sketch6.setExpression("Constraints[11]", "Params.sketch6_height")
pocket5 = doc.addObject("PartDesign::Pocket", "Pocket004")
body.addObject(pocket5)
pocket5.Profile = sketch6
pocket5.setExpression("Length", "Params.pocket5_length")
pocket5.Reversed = True
doc.recompute()

fillet6 = doc.addObject("PartDesign::Fillet", "Fillet005")
body.addObject(fillet6)
fillet6.Base = (pocket5, edges_at(pocket5, [
    (-28, 5, -15.57),
    (-28, 5, -12),
    (-40, 5, -12),
    (-40, 5, -15.57),
]))
fillet6.setExpression("Radius", "Params.fillet6_radius")

sketch7 = doc.addObject("Sketcher::SketchObject", "Sketch006")
body.addObject(sketch7)
sketch7.AttachmentSupport = (doc.XZ_Plane, [""])
sketch7.MapMode = "FlatFace"
sketch7.AttachmentOffset = App.Placement(App.Vector(0, 0, -10), App.Rotation())
sketch7.addGeometry([
    Part.LineSegment(App.Vector(-11.73, -18.1739, 0), App.Vector(-11.73, -49.7949, 0)),
    Part.LineSegment(App.Vector(-11.73, -49.7949, 0), App.Vector(-56.2098, -49.7949, 0)),
    Part.LineSegment(App.Vector(-56.2098, -49.7949, 0), App.Vector(-56.2098, -18.1739, 0)),
    Part.LineSegment(App.Vector(-56.2098, -18.1739, 0), App.Vector(-11.73, -18.1739, 0)),
], False)
sketch7.addConstraint([
    Sketcher.Constraint("Coincident", 0, 2, 1, 1),
    Sketcher.Constraint("Coincident", 1, 2, 2, 1),
    Sketcher.Constraint("Coincident", 2, 2, 3, 1),
    Sketcher.Constraint("Coincident", 3, 2, 0, 1),
    Sketcher.Constraint("Vertical", 0),
    Sketcher.Constraint("Horizontal", 1),
    Sketcher.Constraint("Vertical", 2),
    Sketcher.Constraint("Horizontal", 3),
    Sketcher.Constraint("DistanceY", 0, 2, 0, 1, 31.621),
    Sketcher.Constraint("DistanceX", 0, 2, -1, 1, 11.73),
    Sketcher.Constraint("DistanceX", 1, 2, 1, 1, 44.4798),
    Sketcher.Constraint("DistanceY", 0, 2, -1, 1, 49.795),
])
pocket6 = doc.addObject("PartDesign::Pocket", "Pocket005")
body.addObject(pocket6)
pocket6.Profile = sketch7
pocket6.setExpression("Length", "Params.pocket6_length")
pocket6.Reversed = True
doc.recompute()

fillet7 = doc.addObject("PartDesign::Fillet", "Fillet006")
body.addObject(fillet7)
fillet7.Base = (pocket6, edges_at(pocket6, [(-42, 5, -18.174), (-56.21, 5, -45.07)]))
fillet7.setExpression("Radius", "Params.fillet7_radius")

sketch8 = doc.addObject("Sketcher::SketchObject", "Sketch007")
body.addObject(sketch8)
sketch8.AttachmentSupport = (doc.XZ_Plane, [""])
sketch8.MapMode = "FlatFace"
sketch8.AttachmentOffset = App.Placement(App.Vector(0, 0, -10), App.Rotation())
sketch8.addGeometry([
    Part.LineSegment(App.Vector(-66, -5, 0), App.Vector(-33, -5, 0)),
    Part.LineSegment(App.Vector(-33, -5, 0), App.Vector(-33, -23, 0)),
    Part.LineSegment(App.Vector(-33, -23, 0), App.Vector(-66, -23, 0)),
    Part.LineSegment(App.Vector(-66, -23, 0), App.Vector(-66, -5, 0)),
], False)
sketch8.addConstraint([
    Sketcher.Constraint("Coincident", 0, 2, 1, 1),
    Sketcher.Constraint("Coincident", 1, 2, 2, 1),
    Sketcher.Constraint("Coincident", 2, 2, 3, 1),
    Sketcher.Constraint("Coincident", 3, 2, 0, 1),
    Sketcher.Constraint("Horizontal", 0),
    Sketcher.Constraint("Vertical", 1),
    Sketcher.Constraint("Horizontal", 2),
    Sketcher.Constraint("Vertical", 3),
    Sketcher.Constraint("DistanceX", 0, 1, 0, 2, 33.0),
    Sketcher.Constraint("DistanceY", 1, 2, 1, 1, 18.0),
    Sketcher.Constraint("DistanceX", 0, 2, -1, 1, 33.0),
    Sketcher.Constraint("DistanceY", 0, 2, -1, 1, 5.0),
])
sketch8.setExpression("Constraints[8]", "Params.sketch8_width")
sketch8.setExpression("Constraints[9]", "Params.sketch8_height")
pocket7 = doc.addObject("PartDesign::Pocket", "Pocket006")
body.addObject(pocket7)
pocket7.Profile = sketch8
pocket7.setExpression("Length", "Params.pocket7_length")
pocket7.Reversed = True
doc.recompute()

fillet8 = doc.addObject("PartDesign::Fillet", "Fillet007")
body.addObject(fillet8)
fillet8.Base = (pocket7, edges_at(pocket7, [(-56.21, 5, -39)]))
fillet8.setExpression("Radius", "Params.fillet8_radius")

doc.recompute()
